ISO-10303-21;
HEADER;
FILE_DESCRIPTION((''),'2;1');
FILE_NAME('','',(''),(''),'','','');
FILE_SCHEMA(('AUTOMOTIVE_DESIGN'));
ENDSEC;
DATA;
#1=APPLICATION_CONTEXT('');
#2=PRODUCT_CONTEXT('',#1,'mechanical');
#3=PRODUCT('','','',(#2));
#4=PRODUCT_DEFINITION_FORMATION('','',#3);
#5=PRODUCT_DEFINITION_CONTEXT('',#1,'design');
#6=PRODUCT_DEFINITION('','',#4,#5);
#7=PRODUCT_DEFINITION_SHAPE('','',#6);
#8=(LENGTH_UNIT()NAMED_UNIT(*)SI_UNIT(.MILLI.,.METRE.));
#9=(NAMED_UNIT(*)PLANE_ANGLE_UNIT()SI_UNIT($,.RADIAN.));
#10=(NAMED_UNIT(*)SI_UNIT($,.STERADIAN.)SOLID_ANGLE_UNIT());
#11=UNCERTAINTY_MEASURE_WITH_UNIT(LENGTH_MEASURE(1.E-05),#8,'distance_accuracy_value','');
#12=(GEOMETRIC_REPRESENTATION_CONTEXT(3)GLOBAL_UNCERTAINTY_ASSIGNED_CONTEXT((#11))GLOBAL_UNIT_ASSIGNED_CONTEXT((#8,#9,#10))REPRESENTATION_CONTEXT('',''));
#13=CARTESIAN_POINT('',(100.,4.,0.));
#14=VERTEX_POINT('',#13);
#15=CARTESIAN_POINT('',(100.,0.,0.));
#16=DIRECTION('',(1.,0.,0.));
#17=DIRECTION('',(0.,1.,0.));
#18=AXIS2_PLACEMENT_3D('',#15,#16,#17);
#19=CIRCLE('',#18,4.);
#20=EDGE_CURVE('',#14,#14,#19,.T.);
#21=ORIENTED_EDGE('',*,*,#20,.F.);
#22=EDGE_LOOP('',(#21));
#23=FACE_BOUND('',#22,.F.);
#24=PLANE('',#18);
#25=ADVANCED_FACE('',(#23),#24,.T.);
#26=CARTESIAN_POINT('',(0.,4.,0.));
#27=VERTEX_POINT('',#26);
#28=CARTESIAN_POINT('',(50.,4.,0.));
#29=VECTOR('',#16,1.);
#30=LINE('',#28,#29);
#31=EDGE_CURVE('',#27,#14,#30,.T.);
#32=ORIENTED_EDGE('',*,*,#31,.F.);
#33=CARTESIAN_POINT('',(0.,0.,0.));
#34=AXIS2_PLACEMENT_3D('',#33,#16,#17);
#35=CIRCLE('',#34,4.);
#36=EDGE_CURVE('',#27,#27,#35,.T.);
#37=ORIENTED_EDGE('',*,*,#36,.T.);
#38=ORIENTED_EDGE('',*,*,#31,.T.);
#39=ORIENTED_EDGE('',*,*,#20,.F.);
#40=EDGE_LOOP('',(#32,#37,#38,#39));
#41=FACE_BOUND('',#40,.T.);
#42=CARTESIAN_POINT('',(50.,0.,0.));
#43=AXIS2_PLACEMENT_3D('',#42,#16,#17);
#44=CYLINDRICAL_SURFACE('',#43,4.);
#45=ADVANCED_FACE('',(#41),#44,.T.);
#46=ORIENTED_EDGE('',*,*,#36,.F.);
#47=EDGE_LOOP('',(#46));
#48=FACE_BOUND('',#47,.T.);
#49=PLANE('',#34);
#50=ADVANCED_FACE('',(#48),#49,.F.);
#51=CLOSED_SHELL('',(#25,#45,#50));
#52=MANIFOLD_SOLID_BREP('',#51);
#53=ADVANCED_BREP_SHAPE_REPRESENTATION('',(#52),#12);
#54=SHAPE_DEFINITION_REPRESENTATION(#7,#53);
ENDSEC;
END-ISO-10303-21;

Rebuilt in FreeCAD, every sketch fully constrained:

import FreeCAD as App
import Part
import Sketcher

V = App.Vector
Q = App.Units.Quantity

doc = App.newDocument("Part")
body = doc.addObject("PartDesign::Body", "Body")

sketch1 = doc.addObject("Sketcher::SketchObject", "Sketch")
body.addObject(sketch1)
sketch1.AttachmentSupport = (doc.XY_Plane, [""])
sketch1.MapMode = "FlatFace"
sketch1.addGeometry([
    Part.LineSegment(V(0, 4, 0), V(0, 0, 0)),
    Part.LineSegment(V(0, 0, 0), V(100, 0, 0)),
    Part.LineSegment(V(100, 0, 0), V(100, 4, 0)),
    Part.LineSegment(V(100, 4, 0), V(0, 4, 0)),
], False)
sketch1.addConstraint([
    Sketcher.Constraint("Coincident", 0, 2, 1, 1),
    Sketcher.Constraint("Coincident", 1, 2, 2, 1),
    Sketcher.Constraint("Coincident", 2, 2, 3, 1),
    Sketcher.Constraint("Coincident", 3, 2, 0, 1),
    Sketcher.Constraint("Vertical", 0),
    Sketcher.Constraint("Horizontal", 1),
    Sketcher.Constraint("Vertical", 2),
    Sketcher.Constraint("Horizontal", 3),
    Sketcher.Constraint("Coincident", 0, 2, -1, 1),
    Sketcher.Constraint("DistanceX", 1, 1, 1, 2, Q("100 mm")),
    Sketcher.Constraint("DistanceY", 0, 2, 0, 1, Q("4 mm")),
])
revolution = doc.addObject("PartDesign::Revolution", "Revolution")
body.addObject(revolution)
revolution.Profile = sketch1
revolution.ReferenceAxis = (sketch1, ["H_Axis"])
revolution.Angle = 360

doc.recompute()
